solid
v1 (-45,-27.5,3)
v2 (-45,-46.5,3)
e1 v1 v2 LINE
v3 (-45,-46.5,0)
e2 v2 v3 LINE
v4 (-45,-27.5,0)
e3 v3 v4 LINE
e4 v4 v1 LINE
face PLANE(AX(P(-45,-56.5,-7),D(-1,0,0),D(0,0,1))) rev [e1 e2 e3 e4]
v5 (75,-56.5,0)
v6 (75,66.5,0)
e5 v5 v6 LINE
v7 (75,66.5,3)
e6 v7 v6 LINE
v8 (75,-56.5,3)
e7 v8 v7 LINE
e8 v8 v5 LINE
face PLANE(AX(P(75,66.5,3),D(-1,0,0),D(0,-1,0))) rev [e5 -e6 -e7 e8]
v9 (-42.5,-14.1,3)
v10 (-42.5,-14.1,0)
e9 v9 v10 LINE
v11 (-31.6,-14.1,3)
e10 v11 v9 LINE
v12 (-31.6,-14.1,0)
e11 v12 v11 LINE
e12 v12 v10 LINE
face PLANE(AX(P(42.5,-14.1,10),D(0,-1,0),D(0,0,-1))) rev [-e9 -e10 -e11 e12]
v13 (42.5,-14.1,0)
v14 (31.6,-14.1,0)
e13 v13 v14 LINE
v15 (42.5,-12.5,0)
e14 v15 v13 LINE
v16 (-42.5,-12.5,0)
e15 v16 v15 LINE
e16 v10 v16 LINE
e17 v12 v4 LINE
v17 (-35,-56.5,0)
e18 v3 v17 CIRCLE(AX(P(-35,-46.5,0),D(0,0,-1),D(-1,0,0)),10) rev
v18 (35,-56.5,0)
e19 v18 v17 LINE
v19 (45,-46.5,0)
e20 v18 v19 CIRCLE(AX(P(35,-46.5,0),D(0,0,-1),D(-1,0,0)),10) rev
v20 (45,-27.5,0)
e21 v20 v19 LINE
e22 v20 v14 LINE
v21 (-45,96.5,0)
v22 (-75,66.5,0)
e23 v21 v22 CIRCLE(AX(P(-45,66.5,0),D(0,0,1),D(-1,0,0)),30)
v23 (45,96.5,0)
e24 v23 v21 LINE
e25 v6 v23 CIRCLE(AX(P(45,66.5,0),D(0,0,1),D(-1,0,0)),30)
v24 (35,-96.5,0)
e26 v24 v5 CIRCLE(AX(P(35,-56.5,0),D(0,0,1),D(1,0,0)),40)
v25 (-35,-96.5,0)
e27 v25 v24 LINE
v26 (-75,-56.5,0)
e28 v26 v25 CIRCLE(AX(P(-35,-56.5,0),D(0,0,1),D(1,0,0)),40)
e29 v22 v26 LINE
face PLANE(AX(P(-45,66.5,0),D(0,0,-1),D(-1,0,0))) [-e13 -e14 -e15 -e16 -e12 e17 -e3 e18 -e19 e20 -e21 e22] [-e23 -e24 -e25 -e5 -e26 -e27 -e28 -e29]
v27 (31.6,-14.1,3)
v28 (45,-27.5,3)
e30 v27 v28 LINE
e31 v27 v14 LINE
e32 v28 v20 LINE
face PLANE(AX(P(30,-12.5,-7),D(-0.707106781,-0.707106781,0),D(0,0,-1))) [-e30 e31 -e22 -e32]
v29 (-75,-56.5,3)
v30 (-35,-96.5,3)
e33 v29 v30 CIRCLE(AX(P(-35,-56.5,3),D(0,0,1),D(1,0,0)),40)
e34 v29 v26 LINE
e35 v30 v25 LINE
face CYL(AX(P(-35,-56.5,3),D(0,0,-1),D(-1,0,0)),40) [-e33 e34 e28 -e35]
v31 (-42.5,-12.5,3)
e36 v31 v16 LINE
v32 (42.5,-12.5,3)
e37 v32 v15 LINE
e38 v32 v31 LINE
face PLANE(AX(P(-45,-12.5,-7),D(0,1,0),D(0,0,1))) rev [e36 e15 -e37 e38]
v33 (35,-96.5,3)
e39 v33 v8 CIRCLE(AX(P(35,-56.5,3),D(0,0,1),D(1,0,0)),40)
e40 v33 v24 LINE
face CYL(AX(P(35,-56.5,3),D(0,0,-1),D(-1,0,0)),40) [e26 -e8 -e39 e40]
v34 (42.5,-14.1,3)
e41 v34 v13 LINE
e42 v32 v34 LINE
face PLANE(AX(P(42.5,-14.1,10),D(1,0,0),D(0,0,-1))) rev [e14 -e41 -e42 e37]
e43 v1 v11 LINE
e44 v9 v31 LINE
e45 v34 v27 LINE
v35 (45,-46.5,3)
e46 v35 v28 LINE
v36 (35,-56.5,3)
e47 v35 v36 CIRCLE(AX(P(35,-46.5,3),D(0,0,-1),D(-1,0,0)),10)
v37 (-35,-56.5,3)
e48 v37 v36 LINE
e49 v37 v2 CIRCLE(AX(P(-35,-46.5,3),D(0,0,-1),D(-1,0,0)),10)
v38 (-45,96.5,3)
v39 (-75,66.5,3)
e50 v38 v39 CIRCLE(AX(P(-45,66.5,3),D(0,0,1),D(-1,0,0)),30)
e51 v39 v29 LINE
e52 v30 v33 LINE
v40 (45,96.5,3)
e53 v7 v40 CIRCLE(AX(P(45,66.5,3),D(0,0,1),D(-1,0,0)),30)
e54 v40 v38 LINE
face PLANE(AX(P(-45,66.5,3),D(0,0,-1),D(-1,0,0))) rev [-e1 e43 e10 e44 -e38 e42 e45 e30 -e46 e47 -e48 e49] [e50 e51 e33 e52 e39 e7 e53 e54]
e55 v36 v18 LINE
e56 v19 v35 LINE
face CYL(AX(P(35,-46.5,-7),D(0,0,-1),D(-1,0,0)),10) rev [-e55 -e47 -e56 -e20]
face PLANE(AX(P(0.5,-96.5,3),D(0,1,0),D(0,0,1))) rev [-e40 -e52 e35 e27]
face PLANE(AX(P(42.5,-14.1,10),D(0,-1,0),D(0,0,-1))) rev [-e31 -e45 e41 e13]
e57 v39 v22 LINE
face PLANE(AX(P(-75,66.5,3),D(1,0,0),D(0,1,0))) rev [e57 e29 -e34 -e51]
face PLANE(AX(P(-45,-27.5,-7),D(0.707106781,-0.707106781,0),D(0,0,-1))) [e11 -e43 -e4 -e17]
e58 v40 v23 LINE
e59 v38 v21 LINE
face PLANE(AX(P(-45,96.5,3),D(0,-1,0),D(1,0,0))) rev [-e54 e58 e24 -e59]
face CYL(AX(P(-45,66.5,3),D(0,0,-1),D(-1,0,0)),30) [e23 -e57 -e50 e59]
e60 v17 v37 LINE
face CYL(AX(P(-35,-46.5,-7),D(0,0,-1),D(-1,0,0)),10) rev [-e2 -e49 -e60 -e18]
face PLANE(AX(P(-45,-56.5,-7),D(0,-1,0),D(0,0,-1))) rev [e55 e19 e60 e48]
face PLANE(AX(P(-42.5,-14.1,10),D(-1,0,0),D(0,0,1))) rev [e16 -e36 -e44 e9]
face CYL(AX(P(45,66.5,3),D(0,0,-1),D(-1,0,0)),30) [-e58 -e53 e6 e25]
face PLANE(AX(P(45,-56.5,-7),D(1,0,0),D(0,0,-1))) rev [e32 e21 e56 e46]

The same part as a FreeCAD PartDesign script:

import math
import FreeCAD as App
import Part
import Sketcher

V = App.Vector
Q = App.Units.Quantity


def edges_at(feature, points):
    """Names of the edges that pass closest to the given points."""
    edges = feature.Shape.Edges
    near = lambda p: min(range(len(edges)), key=lambda i: edges[i].distToShape(Part.Vertex(*p))[0])
    return sorted({f"Edge{near(p) + 1}" for p in points})

doc = App.newDocument("Part")
body = doc.addObject("PartDesign::Body", "Body")

sketch1 = doc.addObject("Sketcher::SketchObject", "Sketch")
body.addObject(sketch1)
sketch1.AttachmentSupport = (doc.XY_Plane, [""])
sketch1.MapMode = "FlatFace"
sketch1.addGeometry(Part.LineSegment(V(45, 96, 0), V(-45, 96, 0)), False)
sketch1.addGeometry(Part.ArcOfCircle(Part.Circle(V(-45, 67, 0), V(0, 0, 1), 30), math.radians(90), math.radians(180)), False)
sketch1.addGeometry(Part.LineSegment(V(-75, 66, 0), V(-75, -56, 0)), False)
sketch1.addGeometry(Part.ArcOfCircle(Part.Circle(V(-35, -56, 0), V(0, 0, 1), 40), math.radians(-180), math.radians(-90)), False)
sketch1.addGeometry(Part.LineSegment(V(-35, -96, 0), V(35, -96, 0)), False)
sketch1.addGeometry(Part.ArcOfCircle(Part.Circle(V(35, -56, 0), V(0, 0, 1), 40), math.radians(-90), math.radians(0)), False)
sketch1.addGeometry(Part.LineSegment(V(75, -56, 0), V(75, 66, 0)), False)
sketch1.addGeometry(Part.ArcOfCircle(Part.Circle(V(45, 67, 0), V(0, 0, 1), 30), math.radians(0), math.radians(90)), False)
sketch1.addConstraint(Sketcher.Constraint("Tangent", 0, 2, 1, 1))
sketch1.addConstraint(Sketcher.Constraint("Tangent", 1, 2, 2, 1))
sketch1.addConstraint(Sketcher.Constraint("Tangent", 2, 2, 3, 1))
sketch1.addConstraint(Sketcher.Constraint("Tangent", 3, 2, 4, 1))
sketch1.addConstraint(Sketcher.Constraint("Tangent", 4, 2, 5, 1))
sketch1.addConstraint(Sketcher.Constraint("Tangent", 5, 2, 6, 1))
sketch1.addConstraint(Sketcher.Constraint("Tangent", 6, 2, 7, 1))
sketch1.addConstraint(Sketcher.Constraint("Tangent", 7, 2, 0, 1))
sketch1.addConstraint(Sketcher.Constraint("Horizontal", 0))
sketch1.addConstraint(Sketcher.Constraint("Vertical", 2))
sketch1.addConstraint(Sketcher.Constraint("Horizontal", 4))
sketch1.addConstraint(Sketcher.Constraint("Vertical", 6))
sketch1.addConstraint(Sketcher.Constraint("Equal", 3, 5))
sketch1.addConstraint(Sketcher.Constraint("Equal", 1, 7))
sketch1.addConstraint(Sketcher.Constraint("Radius", 1, Q("30 mm")))
sketch1.addConstraint(Sketcher.Constraint("Radius", 3, Q("40 mm")))
sketch1.addConstraint(Sketcher.Constraint("DistanceX", 0, 2, 0, 1, Q("90 mm")))
sketch1.addConstraint(Sketcher.Constraint("DistanceY", 2, 2, 2, 1, Q("123 mm")))
sketch1.addConstraint(Sketcher.Constraint("DistanceX", 1, 3, -1, 1, Q("45 mm")))
sketch1.addConstraint(Sketcher.Constraint("DistanceY", -1, 1, 1, 3, Q("66.5 mm")))
pad1 = doc.addObject("PartDesign::Pad", "Pad")
body.addObject(pad1)
pad1.Profile = sketch1
pad1.Length = 3

sketch2 = doc.addObject("Sketcher::SketchObject", "Sketch001")
body.addObject(sketch2)
sketch2.AttachmentSupport = (doc.XY_Plane, [""])
sketch2.MapMode = "FlatFace"
sketch2.AttachmentOffset = App.Placement(V(0, 0, 3), App.Rotation())
sketch2.addGeometry(Part.LineSegment(V(-45, -12, 0), V(-45, -56, 0)), False)
sketch2.addGeometry(Part.LineSegment(V(-45, -56, 0), V(45, -56, 0)), False)
sketch2.addGeometry(Part.LineSegment(V(45, -56, 0), V(45, -12, 0)), False)
sketch2.addGeometry(Part.LineSegment(V(45, -12, 0), V(-45, -12, 0)), False)
sketch2.addConstraint(Sketcher.Constraint("Coincident", 0, 2, 1, 1))
sketch2.addConstraint(Sketcher.Constraint("Coincident", 1, 2, 2, 1))
sketch2.addConstraint(Sketcher.Constraint("Coincident", 2, 2, 3, 1))
sketch2.addConstraint(Sketcher.Constraint("Coincident", 3, 2, 0, 1))
sketch2.addConstraint(Sketcher.Constraint("Vertical", 0))
sketch2.addConstraint(Sketcher.Constraint("Horizontal", 1))
sketch2.addConstraint(Sketcher.Constraint("Vertical", 2))
sketch2.addConstraint(Sketcher.Constraint("Horizontal", 3))
sketch2.addConstraint(Sketcher.Constraint("DistanceX", 1, 1, 1, 2, Q("90 mm")))
sketch2.addConstraint(Sketcher.Constraint("DistanceY", 0, 2, 0, 1, Q("44 mm")))
sketch2.addConstraint(Sketcher.Constraint("DistanceX", 0, 2, -1, 1, Q("45 mm")))
sketch2.addConstraint(Sketcher.Constraint("DistanceY", 0, 2, -1, 1, Q("56.5 mm")))
pocket1 = doc.addObject("PartDesign::Pocket", "Pocket")
body.addObject(pocket1)
pocket1.Profile = sketch2
pocket1.Length = 10
doc.recompute()

fillet = doc.addObject("PartDesign::Fillet", "Fillet")
body.addObject(fillet)
fillet.Base = (pocket1, edges_at(pocket1, [(45, -56.5, 1.5), (-45, -56.5, 1.5)]))
fillet.Radius = 10
doc.recompute()

chamfer = doc.addObject("PartDesign::Chamfer", "Chamfer")
body.addObject(chamfer)
chamfer.Base = (fillet, edges_at(fillet, [(45, -12.5, 1.5), (-45, -12.5, 1.5)]))
chamfer.Size = 15

sketch3 = doc.addObject("Sketcher::SketchObject", "Sketch002")
body.addObject(sketch3)
sketch3.AttachmentSupport = (doc.XY_Plane, [""])
sketch3.MapMode = "FlatFace"
sketch3.addGeometry(Part.LineSegment(V(42.5, -12.5, 0), V(42.5, -14.1, 0)), False)
sketch3.addGeometry(Part.LineSegment(V(42.5, -14.1, 0), V(-42.5, -14.1, 0)), False)
sketch3.addGeometry(Part.LineSegment(V(-42.5, -14.1, 0), V(-42.5, -12.5, 0)), False)
sketch3.addGeometry(Part.LineSegment(V(-42.5, -12.5, 0), V(42.5, -12.5, 0)), False)
sketch3.addConstraint(Sketcher.Constraint("Coincident", 0, 2, 1, 1))
sketch3.addConstraint(Sketcher.Constraint("Coincident", 1, 2, 2, 1))
sketch3.addConstraint(Sketcher.Constraint("Coincident", 2, 2, 3, 1))
sketch3.addConstraint(Sketcher.Constraint("Coincident", 3, 2, 0, 1))
sketch3.addConstraint(Sketcher.Constraint("Vertical", 0))
sketch3.addConstraint(Sketcher.Constraint("Horizontal", 1))
sketch3.addConstraint(Sketcher.Constraint("Vertical", 2))
sketch3.addConstraint(Sketcher.Constraint("Horizontal", 3))
sketch3.addConstraint(Sketcher.Constraint("DistanceX", 1, 2, 1, 1, Q("85 mm")))
sketch3.addConstraint(Sketcher.Constraint("DistanceY", 0, 2, 0, 1, Q("1.6 mm")))
sketch3.addConstraint(Sketcher.Constraint("DistanceX", -1, 1, 0, 2, Q("42.5 mm")))
sketch3.addConstraint(Sketcher.Constraint("DistanceY", 0, 2, -1, 1, Q("14.1 mm")))
pocket2 = doc.addObject("PartDesign::Pocket", "Pocket001")
body.addObject(pocket2)
pocket2.Profile = sketch3
pocket2.Length = 10
pocket2.Reversed = True

doc.recompute()
